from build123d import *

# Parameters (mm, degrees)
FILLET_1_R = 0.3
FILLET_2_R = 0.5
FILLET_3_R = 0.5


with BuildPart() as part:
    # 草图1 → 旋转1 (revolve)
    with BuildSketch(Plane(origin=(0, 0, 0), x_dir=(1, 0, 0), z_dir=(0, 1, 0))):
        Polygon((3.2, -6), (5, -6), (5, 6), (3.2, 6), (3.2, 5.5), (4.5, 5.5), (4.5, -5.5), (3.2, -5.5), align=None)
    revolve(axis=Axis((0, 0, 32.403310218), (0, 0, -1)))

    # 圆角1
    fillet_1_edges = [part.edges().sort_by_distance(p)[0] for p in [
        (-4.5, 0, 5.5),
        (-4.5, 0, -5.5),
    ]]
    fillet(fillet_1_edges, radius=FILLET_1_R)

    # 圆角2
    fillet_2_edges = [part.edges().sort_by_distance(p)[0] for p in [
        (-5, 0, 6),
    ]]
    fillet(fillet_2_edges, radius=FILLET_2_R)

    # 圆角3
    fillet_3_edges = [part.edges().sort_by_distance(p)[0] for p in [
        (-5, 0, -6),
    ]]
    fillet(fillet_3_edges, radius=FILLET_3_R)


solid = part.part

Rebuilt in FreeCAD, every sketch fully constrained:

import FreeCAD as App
import Part
import Sketcher

V = App.Vector
Q = App.Units.Quantity


def edges_at(feature, points):
    """Names of the edges that pass closest to the given points."""
    edges = feature.Shape.Edges
    near = lambda p: min(range(len(edges)), key=lambda i: edges[i].distToShape(Part.Vertex(*p))[0])
    return sorted({f"Edge{near(p) + 1}" for p in points})


def add_polygon(sketch, points):
    """Adds a closed chain of lines whose ends are joined by coincident constraints."""
    first, n = sketch.GeometryCount, len(points)
    for a, b in zip(points, points[1:] + points[:1]):
        sketch.addGeometry(Part.LineSegment(App.Vector(*a, 0), App.Vector(*b, 0)), False)
    for i in range(n):
        sketch.addConstraint(Sketcher.Constraint("Coincident", first + i, 2, first + (i + 1) % n, 1))

doc = App.newDocument("Part")
body = doc.addObject("PartDesign::Body", "Body")

# Sketch on XZ plane
sketch1 = body.newObject("Sketcher::SketchObject", "Sketch")
sketch1.AttachmentSupport = (doc.getObject("XZ_Plane"), [""])
sketch1.MapMode = "FlatFace"
add_polygon(sketch1, [(3.2, 6), (5, 6), (5, -6), (3.2, -6), (3.2, -5.5), (4.5, -5.5), (4.5, 5.5), (3.2, 5.5)])  # lines 0-7
sketch1.addConstraint(Sketcher.Constraint("Horizontal", 0))
sketch1.addConstraint(Sketcher.Constraint("Vertical", 1))
sketch1.addConstraint(Sketcher.Constraint("Horizontal", 2))
sketch1.addConstraint(Sketcher.Constraint("Vertical", 3))
sketch1.addConstraint(Sketcher.Constraint("Horizontal", 4))
sketch1.addConstraint(Sketcher.Constraint("Vertical", 5))
sketch1.addConstraint(Sketcher.Constraint("Horizontal", 6))
sketch1.addConstraint(Sketcher.Constraint("Vertical", 7))
sketch1.addConstraint(Sketcher.Constraint("Symmetric", 3, 2, 6, 2, -1))
sketch1.addConstraint(Sketcher.Constraint("Equal", 3, 7))
sketch1.addConstraint(Sketcher.Constraint("DistanceY", 1, 2, 1, 1, Q("12 mm")))
sketch1.addConstraint(Sketcher.Constraint("DistanceY", 5, 1, 5, 2, Q("11 mm")))
sketch1.addConstraint(Sketcher.Constraint("DistanceX", 0, 1, 0, 2, Q("1.8 mm")))
sketch1.addConstraint(Sketcher.Constraint("DistanceX", 4, 1, 4, 2, Q("1.3 mm")))
sketch1.addConstraint(Sketcher.Constraint("DistanceX", -1, 1, 0, 2, Q("5 mm")))
revolution = body.newObject("PartDesign::Revolution", "Revolution")
revolution.Profile = sketch1
revolution.ReferenceAxis = (sketch1, ["V_Axis"])
revolution.Angle = 360
doc.recompute()

fillet = body.newObject("PartDesign::Fillet", "Fillet")
fillet.Base = (revolution, edges_at(revolution, [(-4.5, 0, 5.5), (-4.5, 0, -5.5)]))
fillet.Radius = 0.3
doc.recompute()

fillet2 = body.newObject("PartDesign::Fillet", "Fillet001")
fillet2.Base = (fillet, edges_at(fillet, [(-5, 0, 6)]))
fillet2.Radius = 0.5
doc.recompute()

fillet3 = body.newObject("PartDesign::Fillet", "Fillet002")
fillet3.Base = (fillet2, edges_at(fillet2, [(-5, 0, -6)]))
fillet3.Radius = 0.5

doc.recompute()
